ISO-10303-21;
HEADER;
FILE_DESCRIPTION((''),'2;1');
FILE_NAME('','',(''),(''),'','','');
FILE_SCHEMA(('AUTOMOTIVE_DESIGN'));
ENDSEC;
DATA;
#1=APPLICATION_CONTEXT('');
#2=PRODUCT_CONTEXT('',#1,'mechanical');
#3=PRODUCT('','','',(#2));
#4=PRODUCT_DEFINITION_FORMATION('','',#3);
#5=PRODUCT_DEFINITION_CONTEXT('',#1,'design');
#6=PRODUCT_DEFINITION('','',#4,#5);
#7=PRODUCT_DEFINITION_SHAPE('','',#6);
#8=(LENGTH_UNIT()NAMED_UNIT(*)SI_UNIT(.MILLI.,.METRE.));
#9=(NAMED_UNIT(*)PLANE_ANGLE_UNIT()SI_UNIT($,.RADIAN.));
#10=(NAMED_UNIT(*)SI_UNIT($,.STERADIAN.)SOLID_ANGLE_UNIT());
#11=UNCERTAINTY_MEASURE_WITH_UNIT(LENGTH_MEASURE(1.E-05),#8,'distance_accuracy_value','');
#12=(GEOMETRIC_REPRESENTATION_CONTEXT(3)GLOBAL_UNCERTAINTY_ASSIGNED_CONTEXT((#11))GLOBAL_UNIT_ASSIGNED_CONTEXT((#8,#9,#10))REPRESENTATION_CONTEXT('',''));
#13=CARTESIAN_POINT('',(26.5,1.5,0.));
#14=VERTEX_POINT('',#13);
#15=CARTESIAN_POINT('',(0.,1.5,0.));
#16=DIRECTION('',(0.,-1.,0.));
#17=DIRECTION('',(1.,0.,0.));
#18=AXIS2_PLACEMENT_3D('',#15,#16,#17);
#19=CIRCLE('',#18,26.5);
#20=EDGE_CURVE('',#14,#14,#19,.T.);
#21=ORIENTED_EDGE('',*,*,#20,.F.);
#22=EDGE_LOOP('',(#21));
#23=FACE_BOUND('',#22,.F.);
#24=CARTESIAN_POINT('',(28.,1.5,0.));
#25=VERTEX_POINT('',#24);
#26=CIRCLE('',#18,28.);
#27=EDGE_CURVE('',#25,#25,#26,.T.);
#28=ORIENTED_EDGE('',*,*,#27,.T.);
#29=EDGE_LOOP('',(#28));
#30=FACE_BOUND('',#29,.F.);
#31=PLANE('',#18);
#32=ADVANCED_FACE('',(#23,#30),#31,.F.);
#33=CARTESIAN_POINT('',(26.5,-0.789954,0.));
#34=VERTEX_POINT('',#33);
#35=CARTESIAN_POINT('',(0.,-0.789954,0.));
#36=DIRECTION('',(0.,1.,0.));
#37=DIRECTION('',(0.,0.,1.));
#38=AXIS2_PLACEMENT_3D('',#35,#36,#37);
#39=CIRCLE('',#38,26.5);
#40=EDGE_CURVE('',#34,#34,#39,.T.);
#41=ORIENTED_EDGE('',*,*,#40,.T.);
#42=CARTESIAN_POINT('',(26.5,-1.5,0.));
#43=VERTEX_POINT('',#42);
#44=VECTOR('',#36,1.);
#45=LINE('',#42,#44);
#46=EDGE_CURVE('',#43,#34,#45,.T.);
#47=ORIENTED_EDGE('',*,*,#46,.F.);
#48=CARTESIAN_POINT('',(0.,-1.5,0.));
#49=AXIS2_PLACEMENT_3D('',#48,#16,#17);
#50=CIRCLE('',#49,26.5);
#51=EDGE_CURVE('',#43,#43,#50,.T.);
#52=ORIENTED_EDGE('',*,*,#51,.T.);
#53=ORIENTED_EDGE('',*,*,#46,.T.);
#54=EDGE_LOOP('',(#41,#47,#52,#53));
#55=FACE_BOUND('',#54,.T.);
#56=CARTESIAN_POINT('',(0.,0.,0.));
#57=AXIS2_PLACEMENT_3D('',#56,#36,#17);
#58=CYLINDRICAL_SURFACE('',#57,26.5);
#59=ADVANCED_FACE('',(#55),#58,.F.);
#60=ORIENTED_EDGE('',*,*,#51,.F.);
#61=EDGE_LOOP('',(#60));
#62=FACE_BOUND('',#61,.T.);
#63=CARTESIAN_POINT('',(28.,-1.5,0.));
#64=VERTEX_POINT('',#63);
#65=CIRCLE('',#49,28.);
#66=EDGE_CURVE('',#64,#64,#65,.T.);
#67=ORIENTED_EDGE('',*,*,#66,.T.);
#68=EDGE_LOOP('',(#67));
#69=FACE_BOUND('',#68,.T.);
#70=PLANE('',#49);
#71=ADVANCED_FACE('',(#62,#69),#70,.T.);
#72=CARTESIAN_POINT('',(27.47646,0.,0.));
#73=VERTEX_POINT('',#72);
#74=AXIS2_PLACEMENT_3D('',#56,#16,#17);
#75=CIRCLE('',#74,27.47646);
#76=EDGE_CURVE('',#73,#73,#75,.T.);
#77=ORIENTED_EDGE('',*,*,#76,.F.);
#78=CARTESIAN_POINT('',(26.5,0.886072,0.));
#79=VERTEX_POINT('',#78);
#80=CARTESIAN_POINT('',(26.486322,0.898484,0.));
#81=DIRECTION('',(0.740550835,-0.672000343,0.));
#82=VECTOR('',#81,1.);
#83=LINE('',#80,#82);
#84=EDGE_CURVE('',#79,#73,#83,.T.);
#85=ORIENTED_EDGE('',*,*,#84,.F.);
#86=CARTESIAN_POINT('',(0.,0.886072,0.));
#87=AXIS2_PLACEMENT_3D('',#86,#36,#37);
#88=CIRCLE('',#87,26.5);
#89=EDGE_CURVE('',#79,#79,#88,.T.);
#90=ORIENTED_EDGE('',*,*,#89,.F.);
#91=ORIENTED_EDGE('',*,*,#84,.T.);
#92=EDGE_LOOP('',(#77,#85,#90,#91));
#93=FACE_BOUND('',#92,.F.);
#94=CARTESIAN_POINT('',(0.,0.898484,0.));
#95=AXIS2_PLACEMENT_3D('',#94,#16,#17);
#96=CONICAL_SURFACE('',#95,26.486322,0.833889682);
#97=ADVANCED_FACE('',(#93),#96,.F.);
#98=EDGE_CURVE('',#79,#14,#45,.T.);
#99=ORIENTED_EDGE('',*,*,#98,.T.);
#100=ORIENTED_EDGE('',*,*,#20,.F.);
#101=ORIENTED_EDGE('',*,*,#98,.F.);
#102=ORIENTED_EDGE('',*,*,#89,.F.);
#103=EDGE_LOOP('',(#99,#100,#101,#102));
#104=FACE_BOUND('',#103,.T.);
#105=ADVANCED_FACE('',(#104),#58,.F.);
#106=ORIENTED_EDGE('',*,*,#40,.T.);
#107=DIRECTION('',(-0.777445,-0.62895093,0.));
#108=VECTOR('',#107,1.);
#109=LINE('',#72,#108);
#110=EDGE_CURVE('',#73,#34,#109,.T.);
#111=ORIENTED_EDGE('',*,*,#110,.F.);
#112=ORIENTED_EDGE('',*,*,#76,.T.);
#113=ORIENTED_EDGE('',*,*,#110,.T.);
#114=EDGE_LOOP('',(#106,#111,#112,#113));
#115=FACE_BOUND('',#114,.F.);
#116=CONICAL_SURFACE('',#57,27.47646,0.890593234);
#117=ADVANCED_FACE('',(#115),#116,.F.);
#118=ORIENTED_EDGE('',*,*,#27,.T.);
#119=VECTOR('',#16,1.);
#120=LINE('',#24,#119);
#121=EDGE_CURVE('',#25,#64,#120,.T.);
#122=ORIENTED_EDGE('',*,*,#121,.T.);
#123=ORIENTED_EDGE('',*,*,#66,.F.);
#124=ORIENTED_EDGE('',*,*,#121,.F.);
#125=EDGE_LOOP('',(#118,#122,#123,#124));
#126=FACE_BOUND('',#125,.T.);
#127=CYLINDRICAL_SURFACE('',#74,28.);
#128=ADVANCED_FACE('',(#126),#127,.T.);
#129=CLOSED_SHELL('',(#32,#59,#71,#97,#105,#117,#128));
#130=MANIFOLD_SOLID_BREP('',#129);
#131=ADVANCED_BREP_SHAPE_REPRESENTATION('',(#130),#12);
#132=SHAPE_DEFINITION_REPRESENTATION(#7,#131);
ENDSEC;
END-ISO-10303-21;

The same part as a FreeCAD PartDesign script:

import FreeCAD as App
import Part
import Sketcher
Q = App.Units.Quantity


def add_polygon(sketch, points):
    """Adds a closed chain of lines whose ends are joined by coincident constraints."""
    first, n = sketch.GeometryCount, len(points)
    for a, b in zip(points, points[1:] + points[:1]):
        sketch.addGeometry(Part.LineSegment(App.Vector(*a, 0), App.Vector(*b, 0)), False)
    for i in range(n):
        sketch.addConstraint(Sketcher.Constraint("Coincident", first + i, 2, first + (i + 1) % n, 1))

doc = App.newDocument("Part")
params = doc.addObject("Spreadsheet::Sheet", "Params")
for row, (alias, value) in enumerate([
    ("sketch1_diameter", "56 mm"),
    ("sketch1_diameter2", "53 mm"),
    ("pad1_length", "3 mm"),
], start=1):
    params.set(f"A{row}", alias)
    params.set(f"B{row}", "=" + value)
    params.setAlias(f"B{row}", alias)

body = doc.addObject("PartDesign::Body", "Body")

# Sketch on XZ plane
sketch1 = doc.addObject("Sketcher::SketchObject", "Sketch")
body.addObject(sketch1)
sketch1.AttachmentSupport = (doc.XZ_Plane, [""])
sketch1.MapMode = "FlatFace"
sketch1.addGeometry([
    Part.Circle(App.Vector(0, 0, 0), App.Vector(0, 0, 1), 28),
    Part.Circle(App.Vector(0, 0, 0), App.Vector(0, 0, 1), 26),
], False)
sketch1.addConstraint([
    Sketcher.Constraint("Coincident", 0, 3, -1, 1),
    Sketcher.Constraint("Coincident", 1, 3, -1, 1),
    Sketcher.Constraint("Diameter", 0, Q("56 mm")),
    Sketcher.Constraint("Diameter", 1, Q("53 mm")),
])
sketch1.setExpression("Constraints[2]", "Params.sketch1_diameter")
sketch1.setExpression("Constraints[3]", "Params.sketch1_diameter2")
pad1 = doc.addObject("PartDesign::Pad", "Pad")
body.addObject(pad1)
pad1.Profile = sketch1
pad1.setExpression("Length", "Params.pad1_length")
pad1.Midplane = True

# Sketch on XY plane
sketch2 = doc.addObject("Sketcher::SketchObject", "Sketch001")
body.addObject(sketch2)
sketch2.AttachmentSupport = (doc.XY_Plane, [""])
sketch2.MapMode = "FlatFace"
add_polygon(sketch2, [(-26.5, 0.9), (-27.5, 0), (-26.5, -0.8)])  # lines 0-2
sketch2.addConstraint([
    Sketcher.Constraint("Vertical", 2),
    Sketcher.Constraint("PointOnObject", 0, 2, -1),
    Sketcher.Constraint("Distance", 0, Q("1.337029 mm")),
    Sketcher.Constraint("Distance", 1, Q("1.273579 mm")),
    Sketcher.Constraint("DistanceY", 2, 1, 2, 2, Q("1.699503 mm")),
    Sketcher.Constraint("DistanceX", 0, 2, -1, 1, Q("27.47646 mm")),
])

# Sketch on XZ plane
sketch3 = doc.addObject("Sketcher::SketchObject", "Sketch002")
body.addObject(sketch3)
sketch3.AttachmentSupport = (doc.XZ_Plane, [""])
sketch3.MapMode = "FlatFace"
sketch3.addGeometry(Part.Circle(App.Vector(0, 0, 0), App.Vector(0, 0, 1), 27), False)
sketch3.addConstraint([
    Sketcher.Constraint("Coincident", 0, 3, -1, 1),
    Sketcher.Constraint("Diameter", 0, Q("54.317748 mm")),
])
doc.recompute()

subtractivepipe = doc.addObject("PartDesign::SubtractivePipe", "SubtractivePipe")
body.addObject(subtractivepipe)
subtractivepipe.Profile = sketch2
subtractivepipe.Spine = (sketch3, ["Edge1"])

doc.recompute()
